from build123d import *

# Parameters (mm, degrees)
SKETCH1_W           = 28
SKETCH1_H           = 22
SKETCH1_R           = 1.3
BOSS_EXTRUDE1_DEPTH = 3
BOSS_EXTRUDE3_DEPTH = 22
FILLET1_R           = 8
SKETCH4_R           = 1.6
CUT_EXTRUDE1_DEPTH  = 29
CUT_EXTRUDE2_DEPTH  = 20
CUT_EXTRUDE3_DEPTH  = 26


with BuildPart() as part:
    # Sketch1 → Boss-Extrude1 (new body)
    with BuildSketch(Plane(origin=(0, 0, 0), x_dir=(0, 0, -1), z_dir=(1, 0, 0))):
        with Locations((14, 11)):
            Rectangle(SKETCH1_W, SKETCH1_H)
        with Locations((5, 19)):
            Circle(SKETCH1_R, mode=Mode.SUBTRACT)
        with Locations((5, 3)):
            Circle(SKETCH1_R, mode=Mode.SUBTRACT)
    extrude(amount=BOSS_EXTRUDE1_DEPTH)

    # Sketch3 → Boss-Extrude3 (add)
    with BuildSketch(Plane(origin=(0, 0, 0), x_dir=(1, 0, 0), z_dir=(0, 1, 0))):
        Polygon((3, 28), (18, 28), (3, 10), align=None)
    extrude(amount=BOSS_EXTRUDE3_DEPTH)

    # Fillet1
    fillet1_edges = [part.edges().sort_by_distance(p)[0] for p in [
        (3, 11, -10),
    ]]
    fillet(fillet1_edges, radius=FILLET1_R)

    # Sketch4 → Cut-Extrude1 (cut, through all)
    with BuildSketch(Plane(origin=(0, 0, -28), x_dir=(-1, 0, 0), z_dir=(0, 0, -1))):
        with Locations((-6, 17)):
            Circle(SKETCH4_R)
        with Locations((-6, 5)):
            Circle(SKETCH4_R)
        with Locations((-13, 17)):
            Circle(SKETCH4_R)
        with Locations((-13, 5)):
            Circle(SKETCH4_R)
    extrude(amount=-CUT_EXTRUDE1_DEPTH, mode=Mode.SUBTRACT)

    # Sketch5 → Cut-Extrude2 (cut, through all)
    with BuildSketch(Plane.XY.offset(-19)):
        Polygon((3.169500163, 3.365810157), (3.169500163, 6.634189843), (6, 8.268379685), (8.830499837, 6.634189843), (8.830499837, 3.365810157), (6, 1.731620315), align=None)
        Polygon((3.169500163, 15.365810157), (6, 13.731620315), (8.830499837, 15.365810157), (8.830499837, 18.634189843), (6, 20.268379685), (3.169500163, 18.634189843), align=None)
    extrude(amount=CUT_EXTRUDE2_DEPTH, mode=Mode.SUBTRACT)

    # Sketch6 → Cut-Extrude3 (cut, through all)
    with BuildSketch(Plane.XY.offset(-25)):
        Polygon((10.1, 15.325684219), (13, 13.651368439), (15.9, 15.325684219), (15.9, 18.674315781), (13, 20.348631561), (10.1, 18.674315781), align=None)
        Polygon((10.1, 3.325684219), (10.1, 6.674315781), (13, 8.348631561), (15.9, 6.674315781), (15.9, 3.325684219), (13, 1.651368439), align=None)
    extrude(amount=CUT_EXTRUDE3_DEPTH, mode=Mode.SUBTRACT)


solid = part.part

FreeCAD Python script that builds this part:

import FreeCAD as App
import Part
import Sketcher

V = App.Vector
Q = App.Units.Quantity


def edges_at(feature, points):
    """Names of the edges that pass closest to the given points."""
    edges = feature.Shape.Edges
    near = lambda p: min(range(len(edges)), key=lambda i: edges[i].distToShape(Part.Vertex(*p))[0])
    return sorted({f"Edge{near(p) + 1}" for p in points})


def add_polygon(sketch, points):
    """Adds a closed chain of lines whose ends are joined by coincident constraints."""
    first, n = sketch.GeometryCount, len(points)
    for a, b in zip(points, points[1:] + points[:1]):
        sketch.addGeometry(Part.LineSegment(App.Vector(*a, 0), App.Vector(*b, 0)), False)
    for i in range(n):
        sketch.addConstraint(Sketcher.Constraint("Coincident", first + i, 2, first + (i + 1) % n, 1))

doc = App.newDocument("Part")
body = doc.addObject("PartDesign::Body", "Body")

sketch1 = body.newObject("Sketcher::SketchObject", "Sketch")
sketch1.AttachmentSupport = (doc.getObject("YZ_Plane"), [""])
sketch1.MapMode = "FlatFace"
add_polygon(sketch1, [(22, 0), (0, 0), (0, -28), (22, -28)])
sketch1.addGeometry(Part.Circle(V(3, -5, 0), V(0, 0, 1), 1.3), False)
sketch1.addGeometry(Part.Circle(V(19, -5, 0), V(0, 0, 1), 1.3), False)
sketch1.addConstraint(Sketcher.Constraint("Horizontal", 0))
sketch1.addConstraint(Sketcher.Constraint("Vertical", 1))
sketch1.addConstraint(Sketcher.Constraint("Horizontal", 2))
sketch1.addConstraint(Sketcher.Constraint("Vertical", 3))
sketch1.addConstraint(Sketcher.Constraint("Coincident", 0, 2, -1, 1))
sketch1.addConstraint(Sketcher.Constraint("Equal", 4, 5))
sketch1.addConstraint(Sketcher.Constraint("Horizontal", 4, 3, 5, 3))
sketch1.addConstraint(Sketcher.Constraint("Diameter", 4, 2.6))
sketch1.addConstraint(Sketcher.Constraint("DistanceX", 0, 2, 0, 1, 22.0))
sketch1.addConstraint(Sketcher.Constraint("DistanceY", 1, 2, 1, 1, 28.0))
sketch1.addConstraint(Sketcher.Constraint("DistanceX", -1, 1, 4, 3, 3.0))
sketch1.addConstraint(Sketcher.Constraint("DistanceY", 4, 3, -1, 1, 5.0))
sketch1.addConstraint(Sketcher.Constraint("DistanceX", -1, 1, 5, 3, 19.0))
pad1 = body.newObject("PartDesign::Pad", "Pad")
pad1.Profile = sketch1
pad1.Length = 3

sketch2 = body.newObject("Sketcher::SketchObject", "Sketch001")
sketch2.AttachmentSupport = (doc.getObject("XZ_Plane"), [""])
sketch2.MapMode = "FlatFace"
add_polygon(sketch2, [(18, -28), (3, -28), (3, -10)])
sketch2.addConstraint(Sketcher.Constraint("Horizontal", 0))
sketch2.addConstraint(Sketcher.Constraint("Vertical", 1))
sketch2.addConstraint(Sketcher.Constraint("DistanceX", 0, 2, 0, 1, 15.0))
sketch2.addConstraint(Sketcher.Constraint("DistanceY", 1, 1, 1, 2, 18.0))
sketch2.addConstraint(Sketcher.Constraint("DistanceX", -1, 1, 0, 2, 3.0))
sketch2.addConstraint(Sketcher.Constraint("DistanceY", 0, 2, -1, 1, 28.0))
pad2 = body.newObject("PartDesign::Pad", "Pad001")
pad2.Profile = sketch2
pad2.Length = 22
pad2.Reversed = True
doc.recompute()

fillet = body.newObject("PartDesign::Fillet", "Fillet")
fillet.Base = (pad2, edges_at(pad2, [(3, 11, -10)]))
fillet.Radius = 8

sketch3 = body.newObject("Sketcher::SketchObject", "Sketch002")
sketch3.AttachmentSupport = (doc.getObject("XY_Plane"), [""])
sketch3.MapMode = "FlatFace"
sketch3.AttachmentOffset = App.Placement(V(0, 0, -28), App.Rotation())
sketch3.addGeometry(Part.Circle(V(6, 17, 0), V(0, 0, 1), 1.6), False)
sketch3.addGeometry(Part.Circle(V(6, 5, 0), V(0, 0, 1), 1.6), False)
sketch3.addGeometry(Part.Circle(V(13, 17, 0), V(0, 0, 1), 1.6), False)
sketch3.addGeometry(Part.Circle(V(13, 5, 0), V(0, 0, 1), 1.6), False)
sketch3.addConstraint(Sketcher.Constraint("Equal", 0, 1))
sketch3.addConstraint(Sketcher.Constraint("Equal", 1, 2))
sketch3.addConstraint(Sketcher.Constraint("Equal", 2, 3))
sketch3.addConstraint(Sketcher.Constraint("Horizontal", 0, 3, 2, 3))
sketch3.addConstraint(Sketcher.Constraint("Horizontal", 1, 3, 3, 3))
sketch3.addConstraint(Sketcher.Constraint("Vertical", 0, 3, 1, 3))
sketch3.addConstraint(Sketcher.Constraint("Vertical", 2, 3, 3, 3))
sketch3.addConstraint(Sketcher.Constraint("Diameter", 0, 3.2))
sketch3.addConstraint(Sketcher.Constraint("DistanceX", -1, 1, 0, 3, 6.0))
sketch3.addConstraint(Sketcher.Constraint("DistanceY", -1, 1, 0, 3, 17.0))
sketch3.addConstraint(Sketcher.Constraint("DistanceY", -1, 1, 1, 3, 5.0))
sketch3.addConstraint(Sketcher.Constraint("DistanceX", -1, 1, 2, 3, 13.0))
pocket1 = body.newObject("PartDesign::Pocket", "Pocket")
pocket1.Profile = sketch3
pocket1.Type = "ThroughAll"
pocket1.Reversed = True

sketch4 = body.newObject("Sketcher::SketchObject", "Sketch003")
sketch4.AttachmentSupport = (doc.getObject("XY_Plane"), [""])
sketch4.MapMode = "FlatFace"
sketch4.AttachmentOffset = App.Placement(V(0, 0, -19), App.Rotation())
add_polygon(sketch4, [(3.1695, 6.63419), (3.1695, 3.36581), (6, 1.73162), (8.8305, 3.36581), (8.8305, 6.63419), (6, 8.26838)])
add_polygon(sketch4, [(3.1695, 15.36581), (6, 13.73162), (8.8305, 15.36581), (8.8305, 18.63419), (6, 20.26838), (3.1695, 18.63419)])
sketch4.addConstraint(Sketcher.Constraint("Vertical", 0))
sketch4.addConstraint(Sketcher.Constraint("Vertical", 3))
sketch4.addConstraint(Sketcher.Constraint("Vertical", 8))
sketch4.addConstraint(Sketcher.Constraint("Vertical", 11))
sketch4.addConstraint(Sketcher.Constraint("Parallel", 1, 4))
sketch4.addConstraint(Sketcher.Constraint("Parallel", 2, 5))
sketch4.addConstraint(Sketcher.Constraint("Parallel", 4, 6))
sketch4.addConstraint(Sketcher.Constraint("Parallel", 5, 7))
sketch4.addConstraint(Sketcher.Constraint("Parallel", 6, 9))
sketch4.addConstraint(Sketcher.Constraint("Parallel", 7, 10))
sketch4.addConstraint(Sketcher.Constraint("Horizontal", 0, 2, 2, 2))
sketch4.addConstraint(Sketcher.Constraint("Horizontal", 3, 2, 5, 2))
sketch4.addConstraint(Sketcher.Constraint("Horizontal", 8, 2, 10, 2))
sketch4.addConstraint(Sketcher.Constraint("Horizontal", 7, 2, 11, 2))
sketch4.addConstraint(Sketcher.Constraint("Vertical", 1, 2, 4, 2))
sketch4.addConstraint(Sketcher.Constraint("Vertical", 4, 2, 6, 2))
sketch4.addConstraint(Sketcher.Constraint("Vertical", 3, 2, 7, 2))
sketch4.addConstraint(Sketcher.Constraint("Equal", 3, 8))
sketch4.addConstraint(Sketcher.Constraint("Angle", 1, Q("-30 deg")))
sketch4.addConstraint(Sketcher.Constraint("DistanceX", -1, 1, 1, 2, 6.0))
sketch4.addConstraint(Sketcher.Constraint("DistanceY", 2, 2, 7, 2, 12.0))
sketch4.addConstraint(Sketcher.Constraint("DistanceX", 0, 2, 2, 2, 5.661))
sketch4.addConstraint(Sketcher.Constraint("DistanceY", 0, 2, 0, 1, 3.26838))
sketch4.addConstraint(Sketcher.Constraint("DistanceY", -1, 1, 0, 2, 3.36581))
pocket2 = body.newObject("PartDesign::Pocket", "Pocket001")
pocket2.Profile = sketch4
pocket2.Type = "ThroughAll"
pocket2.Reversed = True

sketch5 = body.newObject("Sketcher::SketchObject", "Sketch004")
sketch5.AttachmentSupport = (doc.getObject("XY_Plane"), [""])
sketch5.MapMode = "FlatFace"
sketch5.AttachmentOffset = App.Placement(V(0, 0, -25), App.Rotation())
add_polygon(sketch5, [(10.1, 15.325684), (13, 13.651368), (15.9, 15.325684), (15.9, 18.674316), (13, 20.348632), (10.1, 18.674316)])
add_polygon(sketch5, [(10.1, 6.674316), (10.1, 3.325684), (13, 1.651368), (15.9, 3.325684), (15.9, 6.674316), (13, 8.348632)])
sketch5.addConstraint(Sketcher.Constraint("Vertical", 2))
sketch5.addConstraint(Sketcher.Constraint("Vertical", 5))
sketch5.addConstraint(Sketcher.Constraint("Vertical", 6))
sketch5.addConstraint(Sketcher.Constraint("Vertical", 9))
sketch5.addConstraint(Sketcher.Constraint("Parallel", 0, 3))
sketch5.addConstraint(Sketcher.Constraint("Parallel", 1, 4))
sketch5.addConstraint(Sketcher.Constraint("Parallel", 3, 7))
sketch5.addConstraint(Sketcher.Constraint("Parallel", 4, 8))
sketch5.addConstraint(Sketcher.Constraint("Parallel", 7, 10))
sketch5.addConstraint(Sketcher.Constraint("Parallel", 8, 11))
sketch5.addConstraint(Sketcher.Constraint("Horizontal", 2, 2, 4, 2))
sketch5.addConstraint(Sketcher.Constraint("Horizontal", 1, 2, 5, 2))
sketch5.addConstraint(Sketcher.Constraint("Horizontal", 6, 2, 8, 2))
sketch5.addConstraint(Sketcher.Constraint("Horizontal", 9, 2, 11, 2))
sketch5.addConstraint(Sketcher.Constraint("Vertical", 0, 2, 3, 2))
sketch5.addConstraint(Sketcher.Constraint("Vertical", 5, 2, 6, 2))
sketch5.addConstraint(Sketcher.Constraint("Vertical", 3, 2, 7, 2))
sketch5.addConstraint(Sketcher.Constraint("Equal", 5, 6))
sketch5.addConstraint(Sketcher.Constraint("Angle", 0, Q("-30 deg")))
sketch5.addConstraint(Sketcher.Constraint("DistanceX", -1, 1, 0, 2, 13.0))
sketch5.addConstraint(Sketcher.Constraint("DistanceY", 6, 2, 5, 2, 12.0))
sketch5.addConstraint(Sketcher.Constraint("DistanceX", -1, 1, 1, 2, 15.9))
sketch5.addConstraint(Sketcher.Constraint("DistanceY", 2, 1, 2, 2, 3.348632))
sketch5.addConstraint(Sketcher.Constraint("DistanceY", -1, 1, 0, 2, 13.651368))
pocket3 = body.newObject("PartDesign::Pocket", "Pocket002")
pocket3.Profile = sketch5
pocket3.Type = "ThroughAll"
pocket3.Reversed = True

doc.recompute()
